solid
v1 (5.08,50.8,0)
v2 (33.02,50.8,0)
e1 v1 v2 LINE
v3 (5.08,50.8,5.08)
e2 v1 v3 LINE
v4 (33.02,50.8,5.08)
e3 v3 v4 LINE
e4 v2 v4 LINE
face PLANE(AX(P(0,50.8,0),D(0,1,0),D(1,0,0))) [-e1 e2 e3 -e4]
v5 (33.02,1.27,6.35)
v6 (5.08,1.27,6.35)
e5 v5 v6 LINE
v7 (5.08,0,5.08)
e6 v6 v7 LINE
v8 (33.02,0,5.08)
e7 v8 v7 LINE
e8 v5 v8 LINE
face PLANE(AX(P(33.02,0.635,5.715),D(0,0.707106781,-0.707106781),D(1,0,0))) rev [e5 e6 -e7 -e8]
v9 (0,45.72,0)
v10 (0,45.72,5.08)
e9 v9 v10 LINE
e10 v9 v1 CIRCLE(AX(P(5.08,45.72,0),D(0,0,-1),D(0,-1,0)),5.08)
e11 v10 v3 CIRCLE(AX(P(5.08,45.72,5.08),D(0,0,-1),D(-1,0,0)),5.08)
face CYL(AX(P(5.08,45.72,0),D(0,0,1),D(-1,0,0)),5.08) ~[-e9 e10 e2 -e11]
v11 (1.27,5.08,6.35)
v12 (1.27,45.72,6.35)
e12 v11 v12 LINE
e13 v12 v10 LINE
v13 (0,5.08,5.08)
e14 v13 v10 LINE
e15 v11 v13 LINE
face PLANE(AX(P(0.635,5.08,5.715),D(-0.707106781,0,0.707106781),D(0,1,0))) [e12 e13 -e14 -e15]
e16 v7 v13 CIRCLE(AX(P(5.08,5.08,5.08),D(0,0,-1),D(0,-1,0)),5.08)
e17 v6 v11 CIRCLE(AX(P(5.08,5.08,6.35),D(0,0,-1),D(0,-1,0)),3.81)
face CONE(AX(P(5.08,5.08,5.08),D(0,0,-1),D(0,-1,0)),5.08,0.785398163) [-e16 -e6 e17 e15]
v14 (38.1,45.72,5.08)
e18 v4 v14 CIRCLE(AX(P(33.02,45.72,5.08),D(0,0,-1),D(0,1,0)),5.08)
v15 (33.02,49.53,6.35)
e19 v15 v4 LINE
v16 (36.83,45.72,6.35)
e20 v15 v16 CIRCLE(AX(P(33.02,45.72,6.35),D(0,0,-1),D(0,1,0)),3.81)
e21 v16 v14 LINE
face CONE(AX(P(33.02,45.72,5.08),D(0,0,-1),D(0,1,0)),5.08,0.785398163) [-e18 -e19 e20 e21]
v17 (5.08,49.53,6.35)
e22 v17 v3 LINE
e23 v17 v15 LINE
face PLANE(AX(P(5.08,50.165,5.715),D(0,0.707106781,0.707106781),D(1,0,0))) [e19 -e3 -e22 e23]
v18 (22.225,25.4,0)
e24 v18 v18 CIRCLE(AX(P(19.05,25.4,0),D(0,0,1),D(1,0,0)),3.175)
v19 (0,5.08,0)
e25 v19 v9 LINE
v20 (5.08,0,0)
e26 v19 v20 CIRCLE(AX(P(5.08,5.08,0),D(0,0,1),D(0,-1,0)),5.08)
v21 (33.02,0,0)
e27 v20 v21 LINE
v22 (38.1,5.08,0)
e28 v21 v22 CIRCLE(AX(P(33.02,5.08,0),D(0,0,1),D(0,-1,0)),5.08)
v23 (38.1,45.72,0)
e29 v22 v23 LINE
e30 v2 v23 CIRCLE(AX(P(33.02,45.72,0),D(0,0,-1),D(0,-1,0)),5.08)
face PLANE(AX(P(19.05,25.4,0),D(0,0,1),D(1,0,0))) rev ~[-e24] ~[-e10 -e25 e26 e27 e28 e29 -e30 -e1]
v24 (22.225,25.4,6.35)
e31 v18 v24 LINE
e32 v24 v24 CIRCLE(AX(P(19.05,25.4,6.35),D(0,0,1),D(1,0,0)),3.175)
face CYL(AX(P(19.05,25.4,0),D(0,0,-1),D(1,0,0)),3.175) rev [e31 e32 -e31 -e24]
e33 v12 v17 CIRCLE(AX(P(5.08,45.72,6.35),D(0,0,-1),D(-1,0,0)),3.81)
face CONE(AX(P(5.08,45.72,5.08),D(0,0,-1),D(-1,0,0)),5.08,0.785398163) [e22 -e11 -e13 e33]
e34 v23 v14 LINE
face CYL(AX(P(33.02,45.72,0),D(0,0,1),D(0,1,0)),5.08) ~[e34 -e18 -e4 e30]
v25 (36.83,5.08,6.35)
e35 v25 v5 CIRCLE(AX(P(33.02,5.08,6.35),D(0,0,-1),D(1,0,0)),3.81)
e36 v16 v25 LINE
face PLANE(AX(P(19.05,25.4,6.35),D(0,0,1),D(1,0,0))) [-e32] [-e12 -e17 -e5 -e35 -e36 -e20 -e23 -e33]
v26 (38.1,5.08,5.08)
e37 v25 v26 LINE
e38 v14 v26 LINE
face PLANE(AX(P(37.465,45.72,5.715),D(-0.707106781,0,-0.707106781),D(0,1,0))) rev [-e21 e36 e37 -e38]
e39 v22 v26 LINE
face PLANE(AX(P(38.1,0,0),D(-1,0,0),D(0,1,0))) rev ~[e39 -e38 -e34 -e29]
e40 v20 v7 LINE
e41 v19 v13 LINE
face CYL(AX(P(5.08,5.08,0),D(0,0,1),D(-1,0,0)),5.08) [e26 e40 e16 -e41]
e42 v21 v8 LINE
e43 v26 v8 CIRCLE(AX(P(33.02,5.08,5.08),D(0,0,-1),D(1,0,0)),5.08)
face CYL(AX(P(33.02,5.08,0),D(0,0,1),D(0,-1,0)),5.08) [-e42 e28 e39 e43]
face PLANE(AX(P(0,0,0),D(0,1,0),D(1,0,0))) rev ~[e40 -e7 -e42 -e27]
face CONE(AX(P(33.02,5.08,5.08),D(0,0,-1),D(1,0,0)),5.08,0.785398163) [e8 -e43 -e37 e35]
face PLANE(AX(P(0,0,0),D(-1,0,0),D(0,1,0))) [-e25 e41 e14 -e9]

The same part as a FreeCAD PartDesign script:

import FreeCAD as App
import Part
import Sketcher
from FreeCAD import Vector
Q = App.Units.Quantity


def edges_at(feature, points):
    """Names of the edges that pass closest to the given points."""
    edges = feature.Shape.Edges
    near = lambda p: min(range(len(edges)), key=lambda i: edges[i].distToShape(Part.Vertex(*p))[0])
    return sorted({f"Edge{near(p) + 1}" for p in points})

doc = App.newDocument("Part")
body = doc.addObject("PartDesign::Body", "Body")

sketch1 = body.newObject("Sketcher::SketchObject", "Sketch")
sketch1.AttachmentSupport = (doc.getObject("XY_Plane"), [""])
sketch1.MapMode = "FlatFace"
sketch1.addGeometry([
    Part.LineSegment(Vector(0, 50.8, 0), Vector(0, 0, 0)),
    Part.LineSegment(Vector(0, 0, 0), Vector(38.1, 0, 0)),
    Part.LineSegment(Vector(38.1, 0, 0), Vector(38.1, 50.8, 0)),
    Part.LineSegment(Vector(38.1, 50.8, 0), Vector(0, 50.8, 0)),
    Part.Circle(Vector(19.1, 25.4, 0), Vector(0, 0, 1), 3.2),
], False)
sketch1.addConstraint([
    Sketcher.Constraint("Coincident", 0, 2, 1, 1),
    Sketcher.Constraint("Coincident", 1, 2, 2, 1),
    Sketcher.Constraint("Coincident", 2, 2, 3, 1),
    Sketcher.Constraint("Coincident", 3, 2, 0, 1),
    Sketcher.Constraint("Vertical", 0),
    Sketcher.Constraint("Horizontal", 1),
    Sketcher.Constraint("Vertical", 2),
    Sketcher.Constraint("Horizontal", 3),
    Sketcher.Constraint("Coincident", 0, 2, -1, 1),
    Sketcher.Constraint("Diameter", 4, Q("0.25 in")),
    Sketcher.Constraint("DistanceY", 0, 2, 0, 1, Q("2 in")),
    Sketcher.Constraint("DistanceX", 1, 1, 1, 2, Q("1.5 in")),
    Sketcher.Constraint("DistanceY", -1, 1, 4, 3, Q("1 in")),
    Sketcher.Constraint("DistanceX", -1, 1, 4, 3, Q("0.75 in")),
])
pad1 = body.newObject("PartDesign::Pad", "Pad")
pad1.Profile = sketch1
pad1.Length = Q("0.25 in")
doc.recompute()

fillet = body.newObject("PartDesign::Fillet", "Fillet")
fillet.Base = (pad1, edges_at(pad1, [
    (0, 50.8, 3.175),
    (0, 0, 3.175),
    (38.1, 0, 3.175),
    (38.1, 50.8, 3.175),
]))
fillet.Radius = Q("0.2 in")
doc.recompute()

chamfer = body.newObject("PartDesign::Chamfer", "Chamfer")
chamfer.Base = (fillet, edges_at(fillet, [(19.05, 50.8, 6.35)]))
chamfer.Size = Q("0.05 in")

doc.recompute()
